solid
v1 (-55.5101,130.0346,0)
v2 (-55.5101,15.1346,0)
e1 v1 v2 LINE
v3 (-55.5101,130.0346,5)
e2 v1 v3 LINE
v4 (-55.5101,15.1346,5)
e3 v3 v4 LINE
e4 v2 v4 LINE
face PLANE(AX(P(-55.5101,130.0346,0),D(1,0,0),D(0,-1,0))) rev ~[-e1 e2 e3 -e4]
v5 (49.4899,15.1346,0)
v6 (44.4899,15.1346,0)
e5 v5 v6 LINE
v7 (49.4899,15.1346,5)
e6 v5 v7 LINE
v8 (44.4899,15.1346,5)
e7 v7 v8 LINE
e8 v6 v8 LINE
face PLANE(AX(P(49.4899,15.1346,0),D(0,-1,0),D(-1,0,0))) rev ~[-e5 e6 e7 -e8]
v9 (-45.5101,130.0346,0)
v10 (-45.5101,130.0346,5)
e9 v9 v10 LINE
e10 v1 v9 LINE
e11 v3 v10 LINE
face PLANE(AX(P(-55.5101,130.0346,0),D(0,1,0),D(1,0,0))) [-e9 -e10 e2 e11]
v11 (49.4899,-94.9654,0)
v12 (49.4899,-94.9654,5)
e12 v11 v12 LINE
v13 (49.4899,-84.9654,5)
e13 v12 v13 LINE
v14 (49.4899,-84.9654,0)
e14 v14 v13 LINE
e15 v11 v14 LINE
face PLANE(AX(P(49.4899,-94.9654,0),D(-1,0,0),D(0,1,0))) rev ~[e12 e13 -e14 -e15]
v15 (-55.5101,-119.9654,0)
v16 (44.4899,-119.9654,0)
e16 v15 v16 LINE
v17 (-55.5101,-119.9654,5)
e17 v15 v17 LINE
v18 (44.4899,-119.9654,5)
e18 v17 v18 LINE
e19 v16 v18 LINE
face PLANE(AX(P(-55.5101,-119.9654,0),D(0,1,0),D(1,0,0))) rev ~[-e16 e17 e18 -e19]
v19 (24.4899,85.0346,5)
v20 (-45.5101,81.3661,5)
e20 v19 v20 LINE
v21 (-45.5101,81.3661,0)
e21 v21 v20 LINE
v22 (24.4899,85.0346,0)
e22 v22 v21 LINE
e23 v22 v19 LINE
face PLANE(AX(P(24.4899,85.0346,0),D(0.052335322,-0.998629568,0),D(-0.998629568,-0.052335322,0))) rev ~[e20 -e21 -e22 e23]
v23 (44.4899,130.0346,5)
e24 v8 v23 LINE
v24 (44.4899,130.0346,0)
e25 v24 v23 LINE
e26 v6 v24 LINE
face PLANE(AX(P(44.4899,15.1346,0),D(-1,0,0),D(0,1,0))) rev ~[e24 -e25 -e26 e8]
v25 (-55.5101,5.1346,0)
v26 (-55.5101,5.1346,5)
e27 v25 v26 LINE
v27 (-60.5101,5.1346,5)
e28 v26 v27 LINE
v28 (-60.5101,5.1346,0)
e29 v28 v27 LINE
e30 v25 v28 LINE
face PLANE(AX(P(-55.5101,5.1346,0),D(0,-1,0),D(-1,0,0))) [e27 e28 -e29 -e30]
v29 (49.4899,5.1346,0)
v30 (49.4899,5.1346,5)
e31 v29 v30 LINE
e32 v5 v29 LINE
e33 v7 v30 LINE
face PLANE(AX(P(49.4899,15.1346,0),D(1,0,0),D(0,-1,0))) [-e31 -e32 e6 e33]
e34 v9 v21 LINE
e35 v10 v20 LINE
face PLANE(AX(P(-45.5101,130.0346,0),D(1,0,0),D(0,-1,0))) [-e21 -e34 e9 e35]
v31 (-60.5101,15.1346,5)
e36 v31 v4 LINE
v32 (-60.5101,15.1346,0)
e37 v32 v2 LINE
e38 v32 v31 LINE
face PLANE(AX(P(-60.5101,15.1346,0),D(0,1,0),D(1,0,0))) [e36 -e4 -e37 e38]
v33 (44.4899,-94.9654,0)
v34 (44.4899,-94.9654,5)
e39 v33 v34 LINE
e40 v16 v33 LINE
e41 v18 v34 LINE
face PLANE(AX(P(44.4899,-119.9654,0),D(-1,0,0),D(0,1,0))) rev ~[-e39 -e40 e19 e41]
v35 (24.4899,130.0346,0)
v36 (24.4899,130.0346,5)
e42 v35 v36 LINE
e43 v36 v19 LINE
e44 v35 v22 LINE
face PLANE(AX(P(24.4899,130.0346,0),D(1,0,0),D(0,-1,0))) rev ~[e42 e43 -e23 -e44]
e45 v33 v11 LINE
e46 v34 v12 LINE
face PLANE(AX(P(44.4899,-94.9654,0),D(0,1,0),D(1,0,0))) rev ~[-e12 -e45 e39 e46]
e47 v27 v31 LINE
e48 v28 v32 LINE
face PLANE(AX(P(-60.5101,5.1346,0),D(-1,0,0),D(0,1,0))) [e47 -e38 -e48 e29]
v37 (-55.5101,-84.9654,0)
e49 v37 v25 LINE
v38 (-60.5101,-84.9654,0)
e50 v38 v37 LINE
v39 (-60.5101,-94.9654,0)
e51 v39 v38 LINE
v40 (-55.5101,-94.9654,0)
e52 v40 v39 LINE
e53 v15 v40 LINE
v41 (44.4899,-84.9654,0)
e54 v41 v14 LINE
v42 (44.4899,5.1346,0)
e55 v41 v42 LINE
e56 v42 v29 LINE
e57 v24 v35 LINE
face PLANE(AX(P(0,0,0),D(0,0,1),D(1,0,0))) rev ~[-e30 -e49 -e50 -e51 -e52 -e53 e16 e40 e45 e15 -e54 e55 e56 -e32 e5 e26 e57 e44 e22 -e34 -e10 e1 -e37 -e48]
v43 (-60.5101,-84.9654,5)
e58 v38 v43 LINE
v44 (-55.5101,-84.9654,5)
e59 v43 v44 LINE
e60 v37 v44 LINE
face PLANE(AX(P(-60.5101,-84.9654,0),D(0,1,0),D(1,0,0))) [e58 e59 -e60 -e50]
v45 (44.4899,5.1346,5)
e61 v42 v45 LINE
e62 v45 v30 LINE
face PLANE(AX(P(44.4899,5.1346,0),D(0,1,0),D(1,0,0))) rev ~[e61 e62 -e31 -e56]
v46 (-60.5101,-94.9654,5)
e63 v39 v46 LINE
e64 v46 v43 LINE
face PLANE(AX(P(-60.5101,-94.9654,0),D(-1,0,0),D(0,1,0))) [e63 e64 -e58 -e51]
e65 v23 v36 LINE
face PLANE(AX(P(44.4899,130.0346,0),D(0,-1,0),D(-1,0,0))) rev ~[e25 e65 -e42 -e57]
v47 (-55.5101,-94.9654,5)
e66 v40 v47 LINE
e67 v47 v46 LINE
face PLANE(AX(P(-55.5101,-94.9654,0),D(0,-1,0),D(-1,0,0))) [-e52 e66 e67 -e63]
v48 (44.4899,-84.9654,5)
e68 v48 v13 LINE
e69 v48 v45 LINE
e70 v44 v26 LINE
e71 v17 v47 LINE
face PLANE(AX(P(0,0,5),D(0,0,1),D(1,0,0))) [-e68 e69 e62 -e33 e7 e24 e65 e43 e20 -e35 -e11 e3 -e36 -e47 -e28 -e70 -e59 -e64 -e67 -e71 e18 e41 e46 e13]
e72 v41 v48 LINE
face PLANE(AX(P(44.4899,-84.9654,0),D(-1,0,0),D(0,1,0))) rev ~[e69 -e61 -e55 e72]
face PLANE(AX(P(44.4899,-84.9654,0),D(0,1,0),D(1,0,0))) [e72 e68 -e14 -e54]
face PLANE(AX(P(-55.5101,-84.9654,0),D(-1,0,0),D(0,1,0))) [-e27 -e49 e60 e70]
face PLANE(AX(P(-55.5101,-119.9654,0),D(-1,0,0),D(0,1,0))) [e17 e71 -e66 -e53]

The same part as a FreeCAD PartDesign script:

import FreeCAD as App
import Part
import Sketcher
from FreeCAD import Vector
Q = App.Units.Quantity


def add_polygon(sketch, points):
    """Adds a closed chain of lines whose ends are joined by coincident constraints."""
    first, n = sketch.GeometryCount, len(points)
    for a, b in zip(points, points[1:] + points[:1]):
        sketch.addGeometry(Part.LineSegment(App.Vector(*a, 0), App.Vector(*b, 0)), False)
    for i in range(n):
        sketch.addConstraint(Sketcher.Constraint("Coincident", first + i, 2, first + (i + 1) % n, 1))

doc = App.newDocument("Part")
params = doc.addObject("Spreadsheet::Sheet", "Params")
for row, (alias, value) in enumerate([
    ("sketch1_width", "5 mm"),
    ("sketch1_width2", "20 mm"),
    ("sketch1_width3", "10 mm"),
    ("sketch1_width4", "100 mm"),
    ("sketch1_height", "45 mm"),
    ("pad1_length", "5 mm"),
], start=1):
    params.set(f"A{row}", alias)
    params.set(f"B{row}", "=" + value)
    params.setAlias(f"B{row}", alias)

body = doc.addObject("PartDesign::Body", "Body")

# Sketch on XY plane
sketch1 = body.newObject("Sketcher::SketchObject", "Sketch")
sketch1.AttachmentSupport = (doc.getObject("XY_Plane"), [""])
sketch1.MapMode = "FlatFace"
add_polygon(sketch1, [(49, 5), (49, 15), (44, 15), (44, 130), (24, 130), (24, 85), (-46, 81), (-46, 130), (-56, 130), (-56, 15), (-61, 15), (-61, 5), (-56, 5), (-56, -85), (-61, -85), (-61, -95), (-56, -95), (-56, -120), (44, -120), (44, -95), (49, -95), (49, -85), (44, -85), (44, 5)])  # lines 0-23
sketch1.addConstraint([
    Sketcher.Constraint("Vertical", 0),
    Sketcher.Constraint("Horizontal", 1),
    Sketcher.Constraint("Vertical", 2),
    Sketcher.Constraint("Horizontal", 3),
    Sketcher.Constraint("Vertical", 4),
    Sketcher.Constraint("Vertical", 6),
    Sketcher.Constraint("Horizontal", 7),
    Sketcher.Constraint("Vertical", 8),
    Sketcher.Constraint("Horizontal", 9),
    Sketcher.Constraint("Vertical", 10),
    Sketcher.Constraint("Horizontal", 11),
    Sketcher.Constraint("Vertical", 12),
    Sketcher.Constraint("Horizontal", 13),
    Sketcher.Constraint("Vertical", 14),
    Sketcher.Constraint("Horizontal", 15),
    Sketcher.Constraint("Vertical", 16),
    Sketcher.Constraint("Horizontal", 17),
    Sketcher.Constraint("Vertical", 18),
    Sketcher.Constraint("Horizontal", 19),
    Sketcher.Constraint("Vertical", 20),
    Sketcher.Constraint("Horizontal", 21),
    Sketcher.Constraint("Vertical", 22),
    Sketcher.Constraint("Horizontal", 23),
    Sketcher.Constraint("Horizontal", 3, 2, 6, 2),
    Sketcher.Constraint("Horizontal", 1, 2, 8, 2),
    Sketcher.Constraint("Horizontal", 15, 2, 18, 2),
    Sketcher.Constraint("Horizontal", 13, 2, 20, 2),
    Sketcher.Constraint("Horizontal", 11, 2, 22, 2),
    Sketcher.Constraint("Vertical", 8, 2, 11, 2),
    Sketcher.Constraint("Vertical", 10, 2, 13, 2),
    Sketcher.Constraint("Vertical", 12, 2, 15, 2),
    Sketcher.Constraint("Vertical", 2, 2, 17, 2),
    Sketcher.Constraint("Vertical", 0, 2, 19, 2),
    Sketcher.Constraint("Vertical", 18, 2, 21, 2),
    Sketcher.Constraint("Equal", 1, 9),
    Sketcher.Constraint("Equal", 7, 0),
    Sketcher.Constraint("Equal", 10, 14),
    Sketcher.Constraint("DistanceX", 1, 2, 1, 1, 5.0),
    Sketcher.Constraint("DistanceX", 3, 2, 3, 1, 20.0),
    Sketcher.Constraint("DistanceX", 7, 2, 7, 1, 10.0),
    Sketcher.Constraint("DistanceX", 17, 1, 17, 2, 100.0),
    Sketcher.Constraint("DistanceY", 4, 2, 4, 1, 45.0),
    Sketcher.Constraint("DistanceY", 2, 1, 2, 2, 114.9),
    Sketcher.Constraint("DistanceY", 16, 2, 16, 1, 25.0),
    Sketcher.Constraint("Angle", 5, Q("-177 deg")),
    Sketcher.Constraint("DistanceY", 12, 2, 12, 1, 90.1),
    Sketcher.Constraint("DistanceX", -1, 1, 0, 2, 49.49),
    Sketcher.Constraint("DistanceY", -1, 1, 5, 2, 81.366),
])
sketch1.setExpression("Constraints[61]", "Params.sketch1_width")
sketch1.setExpression("Constraints[62]", "Params.sketch1_width2")
sketch1.setExpression("Constraints[63]", "Params.sketch1_width3")
sketch1.setExpression("Constraints[64]", "Params.sketch1_width4")
sketch1.setExpression("Constraints[65]", "Params.sketch1_height")
pad1 = body.newObject("PartDesign::Pad", "Pad")
pad1.Profile = sketch1
pad1.setExpression("Length", "Params.pad1_length")

doc.recompute()
